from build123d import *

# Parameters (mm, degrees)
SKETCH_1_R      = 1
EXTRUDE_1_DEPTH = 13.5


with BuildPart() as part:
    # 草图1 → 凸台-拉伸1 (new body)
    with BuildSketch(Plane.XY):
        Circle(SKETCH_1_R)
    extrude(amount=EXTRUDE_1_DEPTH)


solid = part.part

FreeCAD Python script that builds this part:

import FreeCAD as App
import Part
import Sketcher

doc = App.newDocument("Part")
body = doc.addObject("PartDesign::Body", "Body")

# Sketch on XY plane
sketch1 = body.newObject("Sketcher::SketchObject", "Sketch")
sketch1.AttachmentSupport = (doc.getObject("XY_Plane"), [""])
sketch1.MapMode = "FlatFace"
sketch1.addGeometry(Part.Circle(App.Vector(0, 0, 0), App.Vector(0, 0, 1), 1), False)
sketch1.addConstraint([
    Sketcher.Constraint("Coincident", 0, 3, -1, 1),
    Sketcher.Constraint("Diameter", 0, 2.0),
])
pad1 = body.newObject("PartDesign::Pad", "Pad")
pad1.Profile = sketch1
pad1.Length = 13.5

doc.recompute()
